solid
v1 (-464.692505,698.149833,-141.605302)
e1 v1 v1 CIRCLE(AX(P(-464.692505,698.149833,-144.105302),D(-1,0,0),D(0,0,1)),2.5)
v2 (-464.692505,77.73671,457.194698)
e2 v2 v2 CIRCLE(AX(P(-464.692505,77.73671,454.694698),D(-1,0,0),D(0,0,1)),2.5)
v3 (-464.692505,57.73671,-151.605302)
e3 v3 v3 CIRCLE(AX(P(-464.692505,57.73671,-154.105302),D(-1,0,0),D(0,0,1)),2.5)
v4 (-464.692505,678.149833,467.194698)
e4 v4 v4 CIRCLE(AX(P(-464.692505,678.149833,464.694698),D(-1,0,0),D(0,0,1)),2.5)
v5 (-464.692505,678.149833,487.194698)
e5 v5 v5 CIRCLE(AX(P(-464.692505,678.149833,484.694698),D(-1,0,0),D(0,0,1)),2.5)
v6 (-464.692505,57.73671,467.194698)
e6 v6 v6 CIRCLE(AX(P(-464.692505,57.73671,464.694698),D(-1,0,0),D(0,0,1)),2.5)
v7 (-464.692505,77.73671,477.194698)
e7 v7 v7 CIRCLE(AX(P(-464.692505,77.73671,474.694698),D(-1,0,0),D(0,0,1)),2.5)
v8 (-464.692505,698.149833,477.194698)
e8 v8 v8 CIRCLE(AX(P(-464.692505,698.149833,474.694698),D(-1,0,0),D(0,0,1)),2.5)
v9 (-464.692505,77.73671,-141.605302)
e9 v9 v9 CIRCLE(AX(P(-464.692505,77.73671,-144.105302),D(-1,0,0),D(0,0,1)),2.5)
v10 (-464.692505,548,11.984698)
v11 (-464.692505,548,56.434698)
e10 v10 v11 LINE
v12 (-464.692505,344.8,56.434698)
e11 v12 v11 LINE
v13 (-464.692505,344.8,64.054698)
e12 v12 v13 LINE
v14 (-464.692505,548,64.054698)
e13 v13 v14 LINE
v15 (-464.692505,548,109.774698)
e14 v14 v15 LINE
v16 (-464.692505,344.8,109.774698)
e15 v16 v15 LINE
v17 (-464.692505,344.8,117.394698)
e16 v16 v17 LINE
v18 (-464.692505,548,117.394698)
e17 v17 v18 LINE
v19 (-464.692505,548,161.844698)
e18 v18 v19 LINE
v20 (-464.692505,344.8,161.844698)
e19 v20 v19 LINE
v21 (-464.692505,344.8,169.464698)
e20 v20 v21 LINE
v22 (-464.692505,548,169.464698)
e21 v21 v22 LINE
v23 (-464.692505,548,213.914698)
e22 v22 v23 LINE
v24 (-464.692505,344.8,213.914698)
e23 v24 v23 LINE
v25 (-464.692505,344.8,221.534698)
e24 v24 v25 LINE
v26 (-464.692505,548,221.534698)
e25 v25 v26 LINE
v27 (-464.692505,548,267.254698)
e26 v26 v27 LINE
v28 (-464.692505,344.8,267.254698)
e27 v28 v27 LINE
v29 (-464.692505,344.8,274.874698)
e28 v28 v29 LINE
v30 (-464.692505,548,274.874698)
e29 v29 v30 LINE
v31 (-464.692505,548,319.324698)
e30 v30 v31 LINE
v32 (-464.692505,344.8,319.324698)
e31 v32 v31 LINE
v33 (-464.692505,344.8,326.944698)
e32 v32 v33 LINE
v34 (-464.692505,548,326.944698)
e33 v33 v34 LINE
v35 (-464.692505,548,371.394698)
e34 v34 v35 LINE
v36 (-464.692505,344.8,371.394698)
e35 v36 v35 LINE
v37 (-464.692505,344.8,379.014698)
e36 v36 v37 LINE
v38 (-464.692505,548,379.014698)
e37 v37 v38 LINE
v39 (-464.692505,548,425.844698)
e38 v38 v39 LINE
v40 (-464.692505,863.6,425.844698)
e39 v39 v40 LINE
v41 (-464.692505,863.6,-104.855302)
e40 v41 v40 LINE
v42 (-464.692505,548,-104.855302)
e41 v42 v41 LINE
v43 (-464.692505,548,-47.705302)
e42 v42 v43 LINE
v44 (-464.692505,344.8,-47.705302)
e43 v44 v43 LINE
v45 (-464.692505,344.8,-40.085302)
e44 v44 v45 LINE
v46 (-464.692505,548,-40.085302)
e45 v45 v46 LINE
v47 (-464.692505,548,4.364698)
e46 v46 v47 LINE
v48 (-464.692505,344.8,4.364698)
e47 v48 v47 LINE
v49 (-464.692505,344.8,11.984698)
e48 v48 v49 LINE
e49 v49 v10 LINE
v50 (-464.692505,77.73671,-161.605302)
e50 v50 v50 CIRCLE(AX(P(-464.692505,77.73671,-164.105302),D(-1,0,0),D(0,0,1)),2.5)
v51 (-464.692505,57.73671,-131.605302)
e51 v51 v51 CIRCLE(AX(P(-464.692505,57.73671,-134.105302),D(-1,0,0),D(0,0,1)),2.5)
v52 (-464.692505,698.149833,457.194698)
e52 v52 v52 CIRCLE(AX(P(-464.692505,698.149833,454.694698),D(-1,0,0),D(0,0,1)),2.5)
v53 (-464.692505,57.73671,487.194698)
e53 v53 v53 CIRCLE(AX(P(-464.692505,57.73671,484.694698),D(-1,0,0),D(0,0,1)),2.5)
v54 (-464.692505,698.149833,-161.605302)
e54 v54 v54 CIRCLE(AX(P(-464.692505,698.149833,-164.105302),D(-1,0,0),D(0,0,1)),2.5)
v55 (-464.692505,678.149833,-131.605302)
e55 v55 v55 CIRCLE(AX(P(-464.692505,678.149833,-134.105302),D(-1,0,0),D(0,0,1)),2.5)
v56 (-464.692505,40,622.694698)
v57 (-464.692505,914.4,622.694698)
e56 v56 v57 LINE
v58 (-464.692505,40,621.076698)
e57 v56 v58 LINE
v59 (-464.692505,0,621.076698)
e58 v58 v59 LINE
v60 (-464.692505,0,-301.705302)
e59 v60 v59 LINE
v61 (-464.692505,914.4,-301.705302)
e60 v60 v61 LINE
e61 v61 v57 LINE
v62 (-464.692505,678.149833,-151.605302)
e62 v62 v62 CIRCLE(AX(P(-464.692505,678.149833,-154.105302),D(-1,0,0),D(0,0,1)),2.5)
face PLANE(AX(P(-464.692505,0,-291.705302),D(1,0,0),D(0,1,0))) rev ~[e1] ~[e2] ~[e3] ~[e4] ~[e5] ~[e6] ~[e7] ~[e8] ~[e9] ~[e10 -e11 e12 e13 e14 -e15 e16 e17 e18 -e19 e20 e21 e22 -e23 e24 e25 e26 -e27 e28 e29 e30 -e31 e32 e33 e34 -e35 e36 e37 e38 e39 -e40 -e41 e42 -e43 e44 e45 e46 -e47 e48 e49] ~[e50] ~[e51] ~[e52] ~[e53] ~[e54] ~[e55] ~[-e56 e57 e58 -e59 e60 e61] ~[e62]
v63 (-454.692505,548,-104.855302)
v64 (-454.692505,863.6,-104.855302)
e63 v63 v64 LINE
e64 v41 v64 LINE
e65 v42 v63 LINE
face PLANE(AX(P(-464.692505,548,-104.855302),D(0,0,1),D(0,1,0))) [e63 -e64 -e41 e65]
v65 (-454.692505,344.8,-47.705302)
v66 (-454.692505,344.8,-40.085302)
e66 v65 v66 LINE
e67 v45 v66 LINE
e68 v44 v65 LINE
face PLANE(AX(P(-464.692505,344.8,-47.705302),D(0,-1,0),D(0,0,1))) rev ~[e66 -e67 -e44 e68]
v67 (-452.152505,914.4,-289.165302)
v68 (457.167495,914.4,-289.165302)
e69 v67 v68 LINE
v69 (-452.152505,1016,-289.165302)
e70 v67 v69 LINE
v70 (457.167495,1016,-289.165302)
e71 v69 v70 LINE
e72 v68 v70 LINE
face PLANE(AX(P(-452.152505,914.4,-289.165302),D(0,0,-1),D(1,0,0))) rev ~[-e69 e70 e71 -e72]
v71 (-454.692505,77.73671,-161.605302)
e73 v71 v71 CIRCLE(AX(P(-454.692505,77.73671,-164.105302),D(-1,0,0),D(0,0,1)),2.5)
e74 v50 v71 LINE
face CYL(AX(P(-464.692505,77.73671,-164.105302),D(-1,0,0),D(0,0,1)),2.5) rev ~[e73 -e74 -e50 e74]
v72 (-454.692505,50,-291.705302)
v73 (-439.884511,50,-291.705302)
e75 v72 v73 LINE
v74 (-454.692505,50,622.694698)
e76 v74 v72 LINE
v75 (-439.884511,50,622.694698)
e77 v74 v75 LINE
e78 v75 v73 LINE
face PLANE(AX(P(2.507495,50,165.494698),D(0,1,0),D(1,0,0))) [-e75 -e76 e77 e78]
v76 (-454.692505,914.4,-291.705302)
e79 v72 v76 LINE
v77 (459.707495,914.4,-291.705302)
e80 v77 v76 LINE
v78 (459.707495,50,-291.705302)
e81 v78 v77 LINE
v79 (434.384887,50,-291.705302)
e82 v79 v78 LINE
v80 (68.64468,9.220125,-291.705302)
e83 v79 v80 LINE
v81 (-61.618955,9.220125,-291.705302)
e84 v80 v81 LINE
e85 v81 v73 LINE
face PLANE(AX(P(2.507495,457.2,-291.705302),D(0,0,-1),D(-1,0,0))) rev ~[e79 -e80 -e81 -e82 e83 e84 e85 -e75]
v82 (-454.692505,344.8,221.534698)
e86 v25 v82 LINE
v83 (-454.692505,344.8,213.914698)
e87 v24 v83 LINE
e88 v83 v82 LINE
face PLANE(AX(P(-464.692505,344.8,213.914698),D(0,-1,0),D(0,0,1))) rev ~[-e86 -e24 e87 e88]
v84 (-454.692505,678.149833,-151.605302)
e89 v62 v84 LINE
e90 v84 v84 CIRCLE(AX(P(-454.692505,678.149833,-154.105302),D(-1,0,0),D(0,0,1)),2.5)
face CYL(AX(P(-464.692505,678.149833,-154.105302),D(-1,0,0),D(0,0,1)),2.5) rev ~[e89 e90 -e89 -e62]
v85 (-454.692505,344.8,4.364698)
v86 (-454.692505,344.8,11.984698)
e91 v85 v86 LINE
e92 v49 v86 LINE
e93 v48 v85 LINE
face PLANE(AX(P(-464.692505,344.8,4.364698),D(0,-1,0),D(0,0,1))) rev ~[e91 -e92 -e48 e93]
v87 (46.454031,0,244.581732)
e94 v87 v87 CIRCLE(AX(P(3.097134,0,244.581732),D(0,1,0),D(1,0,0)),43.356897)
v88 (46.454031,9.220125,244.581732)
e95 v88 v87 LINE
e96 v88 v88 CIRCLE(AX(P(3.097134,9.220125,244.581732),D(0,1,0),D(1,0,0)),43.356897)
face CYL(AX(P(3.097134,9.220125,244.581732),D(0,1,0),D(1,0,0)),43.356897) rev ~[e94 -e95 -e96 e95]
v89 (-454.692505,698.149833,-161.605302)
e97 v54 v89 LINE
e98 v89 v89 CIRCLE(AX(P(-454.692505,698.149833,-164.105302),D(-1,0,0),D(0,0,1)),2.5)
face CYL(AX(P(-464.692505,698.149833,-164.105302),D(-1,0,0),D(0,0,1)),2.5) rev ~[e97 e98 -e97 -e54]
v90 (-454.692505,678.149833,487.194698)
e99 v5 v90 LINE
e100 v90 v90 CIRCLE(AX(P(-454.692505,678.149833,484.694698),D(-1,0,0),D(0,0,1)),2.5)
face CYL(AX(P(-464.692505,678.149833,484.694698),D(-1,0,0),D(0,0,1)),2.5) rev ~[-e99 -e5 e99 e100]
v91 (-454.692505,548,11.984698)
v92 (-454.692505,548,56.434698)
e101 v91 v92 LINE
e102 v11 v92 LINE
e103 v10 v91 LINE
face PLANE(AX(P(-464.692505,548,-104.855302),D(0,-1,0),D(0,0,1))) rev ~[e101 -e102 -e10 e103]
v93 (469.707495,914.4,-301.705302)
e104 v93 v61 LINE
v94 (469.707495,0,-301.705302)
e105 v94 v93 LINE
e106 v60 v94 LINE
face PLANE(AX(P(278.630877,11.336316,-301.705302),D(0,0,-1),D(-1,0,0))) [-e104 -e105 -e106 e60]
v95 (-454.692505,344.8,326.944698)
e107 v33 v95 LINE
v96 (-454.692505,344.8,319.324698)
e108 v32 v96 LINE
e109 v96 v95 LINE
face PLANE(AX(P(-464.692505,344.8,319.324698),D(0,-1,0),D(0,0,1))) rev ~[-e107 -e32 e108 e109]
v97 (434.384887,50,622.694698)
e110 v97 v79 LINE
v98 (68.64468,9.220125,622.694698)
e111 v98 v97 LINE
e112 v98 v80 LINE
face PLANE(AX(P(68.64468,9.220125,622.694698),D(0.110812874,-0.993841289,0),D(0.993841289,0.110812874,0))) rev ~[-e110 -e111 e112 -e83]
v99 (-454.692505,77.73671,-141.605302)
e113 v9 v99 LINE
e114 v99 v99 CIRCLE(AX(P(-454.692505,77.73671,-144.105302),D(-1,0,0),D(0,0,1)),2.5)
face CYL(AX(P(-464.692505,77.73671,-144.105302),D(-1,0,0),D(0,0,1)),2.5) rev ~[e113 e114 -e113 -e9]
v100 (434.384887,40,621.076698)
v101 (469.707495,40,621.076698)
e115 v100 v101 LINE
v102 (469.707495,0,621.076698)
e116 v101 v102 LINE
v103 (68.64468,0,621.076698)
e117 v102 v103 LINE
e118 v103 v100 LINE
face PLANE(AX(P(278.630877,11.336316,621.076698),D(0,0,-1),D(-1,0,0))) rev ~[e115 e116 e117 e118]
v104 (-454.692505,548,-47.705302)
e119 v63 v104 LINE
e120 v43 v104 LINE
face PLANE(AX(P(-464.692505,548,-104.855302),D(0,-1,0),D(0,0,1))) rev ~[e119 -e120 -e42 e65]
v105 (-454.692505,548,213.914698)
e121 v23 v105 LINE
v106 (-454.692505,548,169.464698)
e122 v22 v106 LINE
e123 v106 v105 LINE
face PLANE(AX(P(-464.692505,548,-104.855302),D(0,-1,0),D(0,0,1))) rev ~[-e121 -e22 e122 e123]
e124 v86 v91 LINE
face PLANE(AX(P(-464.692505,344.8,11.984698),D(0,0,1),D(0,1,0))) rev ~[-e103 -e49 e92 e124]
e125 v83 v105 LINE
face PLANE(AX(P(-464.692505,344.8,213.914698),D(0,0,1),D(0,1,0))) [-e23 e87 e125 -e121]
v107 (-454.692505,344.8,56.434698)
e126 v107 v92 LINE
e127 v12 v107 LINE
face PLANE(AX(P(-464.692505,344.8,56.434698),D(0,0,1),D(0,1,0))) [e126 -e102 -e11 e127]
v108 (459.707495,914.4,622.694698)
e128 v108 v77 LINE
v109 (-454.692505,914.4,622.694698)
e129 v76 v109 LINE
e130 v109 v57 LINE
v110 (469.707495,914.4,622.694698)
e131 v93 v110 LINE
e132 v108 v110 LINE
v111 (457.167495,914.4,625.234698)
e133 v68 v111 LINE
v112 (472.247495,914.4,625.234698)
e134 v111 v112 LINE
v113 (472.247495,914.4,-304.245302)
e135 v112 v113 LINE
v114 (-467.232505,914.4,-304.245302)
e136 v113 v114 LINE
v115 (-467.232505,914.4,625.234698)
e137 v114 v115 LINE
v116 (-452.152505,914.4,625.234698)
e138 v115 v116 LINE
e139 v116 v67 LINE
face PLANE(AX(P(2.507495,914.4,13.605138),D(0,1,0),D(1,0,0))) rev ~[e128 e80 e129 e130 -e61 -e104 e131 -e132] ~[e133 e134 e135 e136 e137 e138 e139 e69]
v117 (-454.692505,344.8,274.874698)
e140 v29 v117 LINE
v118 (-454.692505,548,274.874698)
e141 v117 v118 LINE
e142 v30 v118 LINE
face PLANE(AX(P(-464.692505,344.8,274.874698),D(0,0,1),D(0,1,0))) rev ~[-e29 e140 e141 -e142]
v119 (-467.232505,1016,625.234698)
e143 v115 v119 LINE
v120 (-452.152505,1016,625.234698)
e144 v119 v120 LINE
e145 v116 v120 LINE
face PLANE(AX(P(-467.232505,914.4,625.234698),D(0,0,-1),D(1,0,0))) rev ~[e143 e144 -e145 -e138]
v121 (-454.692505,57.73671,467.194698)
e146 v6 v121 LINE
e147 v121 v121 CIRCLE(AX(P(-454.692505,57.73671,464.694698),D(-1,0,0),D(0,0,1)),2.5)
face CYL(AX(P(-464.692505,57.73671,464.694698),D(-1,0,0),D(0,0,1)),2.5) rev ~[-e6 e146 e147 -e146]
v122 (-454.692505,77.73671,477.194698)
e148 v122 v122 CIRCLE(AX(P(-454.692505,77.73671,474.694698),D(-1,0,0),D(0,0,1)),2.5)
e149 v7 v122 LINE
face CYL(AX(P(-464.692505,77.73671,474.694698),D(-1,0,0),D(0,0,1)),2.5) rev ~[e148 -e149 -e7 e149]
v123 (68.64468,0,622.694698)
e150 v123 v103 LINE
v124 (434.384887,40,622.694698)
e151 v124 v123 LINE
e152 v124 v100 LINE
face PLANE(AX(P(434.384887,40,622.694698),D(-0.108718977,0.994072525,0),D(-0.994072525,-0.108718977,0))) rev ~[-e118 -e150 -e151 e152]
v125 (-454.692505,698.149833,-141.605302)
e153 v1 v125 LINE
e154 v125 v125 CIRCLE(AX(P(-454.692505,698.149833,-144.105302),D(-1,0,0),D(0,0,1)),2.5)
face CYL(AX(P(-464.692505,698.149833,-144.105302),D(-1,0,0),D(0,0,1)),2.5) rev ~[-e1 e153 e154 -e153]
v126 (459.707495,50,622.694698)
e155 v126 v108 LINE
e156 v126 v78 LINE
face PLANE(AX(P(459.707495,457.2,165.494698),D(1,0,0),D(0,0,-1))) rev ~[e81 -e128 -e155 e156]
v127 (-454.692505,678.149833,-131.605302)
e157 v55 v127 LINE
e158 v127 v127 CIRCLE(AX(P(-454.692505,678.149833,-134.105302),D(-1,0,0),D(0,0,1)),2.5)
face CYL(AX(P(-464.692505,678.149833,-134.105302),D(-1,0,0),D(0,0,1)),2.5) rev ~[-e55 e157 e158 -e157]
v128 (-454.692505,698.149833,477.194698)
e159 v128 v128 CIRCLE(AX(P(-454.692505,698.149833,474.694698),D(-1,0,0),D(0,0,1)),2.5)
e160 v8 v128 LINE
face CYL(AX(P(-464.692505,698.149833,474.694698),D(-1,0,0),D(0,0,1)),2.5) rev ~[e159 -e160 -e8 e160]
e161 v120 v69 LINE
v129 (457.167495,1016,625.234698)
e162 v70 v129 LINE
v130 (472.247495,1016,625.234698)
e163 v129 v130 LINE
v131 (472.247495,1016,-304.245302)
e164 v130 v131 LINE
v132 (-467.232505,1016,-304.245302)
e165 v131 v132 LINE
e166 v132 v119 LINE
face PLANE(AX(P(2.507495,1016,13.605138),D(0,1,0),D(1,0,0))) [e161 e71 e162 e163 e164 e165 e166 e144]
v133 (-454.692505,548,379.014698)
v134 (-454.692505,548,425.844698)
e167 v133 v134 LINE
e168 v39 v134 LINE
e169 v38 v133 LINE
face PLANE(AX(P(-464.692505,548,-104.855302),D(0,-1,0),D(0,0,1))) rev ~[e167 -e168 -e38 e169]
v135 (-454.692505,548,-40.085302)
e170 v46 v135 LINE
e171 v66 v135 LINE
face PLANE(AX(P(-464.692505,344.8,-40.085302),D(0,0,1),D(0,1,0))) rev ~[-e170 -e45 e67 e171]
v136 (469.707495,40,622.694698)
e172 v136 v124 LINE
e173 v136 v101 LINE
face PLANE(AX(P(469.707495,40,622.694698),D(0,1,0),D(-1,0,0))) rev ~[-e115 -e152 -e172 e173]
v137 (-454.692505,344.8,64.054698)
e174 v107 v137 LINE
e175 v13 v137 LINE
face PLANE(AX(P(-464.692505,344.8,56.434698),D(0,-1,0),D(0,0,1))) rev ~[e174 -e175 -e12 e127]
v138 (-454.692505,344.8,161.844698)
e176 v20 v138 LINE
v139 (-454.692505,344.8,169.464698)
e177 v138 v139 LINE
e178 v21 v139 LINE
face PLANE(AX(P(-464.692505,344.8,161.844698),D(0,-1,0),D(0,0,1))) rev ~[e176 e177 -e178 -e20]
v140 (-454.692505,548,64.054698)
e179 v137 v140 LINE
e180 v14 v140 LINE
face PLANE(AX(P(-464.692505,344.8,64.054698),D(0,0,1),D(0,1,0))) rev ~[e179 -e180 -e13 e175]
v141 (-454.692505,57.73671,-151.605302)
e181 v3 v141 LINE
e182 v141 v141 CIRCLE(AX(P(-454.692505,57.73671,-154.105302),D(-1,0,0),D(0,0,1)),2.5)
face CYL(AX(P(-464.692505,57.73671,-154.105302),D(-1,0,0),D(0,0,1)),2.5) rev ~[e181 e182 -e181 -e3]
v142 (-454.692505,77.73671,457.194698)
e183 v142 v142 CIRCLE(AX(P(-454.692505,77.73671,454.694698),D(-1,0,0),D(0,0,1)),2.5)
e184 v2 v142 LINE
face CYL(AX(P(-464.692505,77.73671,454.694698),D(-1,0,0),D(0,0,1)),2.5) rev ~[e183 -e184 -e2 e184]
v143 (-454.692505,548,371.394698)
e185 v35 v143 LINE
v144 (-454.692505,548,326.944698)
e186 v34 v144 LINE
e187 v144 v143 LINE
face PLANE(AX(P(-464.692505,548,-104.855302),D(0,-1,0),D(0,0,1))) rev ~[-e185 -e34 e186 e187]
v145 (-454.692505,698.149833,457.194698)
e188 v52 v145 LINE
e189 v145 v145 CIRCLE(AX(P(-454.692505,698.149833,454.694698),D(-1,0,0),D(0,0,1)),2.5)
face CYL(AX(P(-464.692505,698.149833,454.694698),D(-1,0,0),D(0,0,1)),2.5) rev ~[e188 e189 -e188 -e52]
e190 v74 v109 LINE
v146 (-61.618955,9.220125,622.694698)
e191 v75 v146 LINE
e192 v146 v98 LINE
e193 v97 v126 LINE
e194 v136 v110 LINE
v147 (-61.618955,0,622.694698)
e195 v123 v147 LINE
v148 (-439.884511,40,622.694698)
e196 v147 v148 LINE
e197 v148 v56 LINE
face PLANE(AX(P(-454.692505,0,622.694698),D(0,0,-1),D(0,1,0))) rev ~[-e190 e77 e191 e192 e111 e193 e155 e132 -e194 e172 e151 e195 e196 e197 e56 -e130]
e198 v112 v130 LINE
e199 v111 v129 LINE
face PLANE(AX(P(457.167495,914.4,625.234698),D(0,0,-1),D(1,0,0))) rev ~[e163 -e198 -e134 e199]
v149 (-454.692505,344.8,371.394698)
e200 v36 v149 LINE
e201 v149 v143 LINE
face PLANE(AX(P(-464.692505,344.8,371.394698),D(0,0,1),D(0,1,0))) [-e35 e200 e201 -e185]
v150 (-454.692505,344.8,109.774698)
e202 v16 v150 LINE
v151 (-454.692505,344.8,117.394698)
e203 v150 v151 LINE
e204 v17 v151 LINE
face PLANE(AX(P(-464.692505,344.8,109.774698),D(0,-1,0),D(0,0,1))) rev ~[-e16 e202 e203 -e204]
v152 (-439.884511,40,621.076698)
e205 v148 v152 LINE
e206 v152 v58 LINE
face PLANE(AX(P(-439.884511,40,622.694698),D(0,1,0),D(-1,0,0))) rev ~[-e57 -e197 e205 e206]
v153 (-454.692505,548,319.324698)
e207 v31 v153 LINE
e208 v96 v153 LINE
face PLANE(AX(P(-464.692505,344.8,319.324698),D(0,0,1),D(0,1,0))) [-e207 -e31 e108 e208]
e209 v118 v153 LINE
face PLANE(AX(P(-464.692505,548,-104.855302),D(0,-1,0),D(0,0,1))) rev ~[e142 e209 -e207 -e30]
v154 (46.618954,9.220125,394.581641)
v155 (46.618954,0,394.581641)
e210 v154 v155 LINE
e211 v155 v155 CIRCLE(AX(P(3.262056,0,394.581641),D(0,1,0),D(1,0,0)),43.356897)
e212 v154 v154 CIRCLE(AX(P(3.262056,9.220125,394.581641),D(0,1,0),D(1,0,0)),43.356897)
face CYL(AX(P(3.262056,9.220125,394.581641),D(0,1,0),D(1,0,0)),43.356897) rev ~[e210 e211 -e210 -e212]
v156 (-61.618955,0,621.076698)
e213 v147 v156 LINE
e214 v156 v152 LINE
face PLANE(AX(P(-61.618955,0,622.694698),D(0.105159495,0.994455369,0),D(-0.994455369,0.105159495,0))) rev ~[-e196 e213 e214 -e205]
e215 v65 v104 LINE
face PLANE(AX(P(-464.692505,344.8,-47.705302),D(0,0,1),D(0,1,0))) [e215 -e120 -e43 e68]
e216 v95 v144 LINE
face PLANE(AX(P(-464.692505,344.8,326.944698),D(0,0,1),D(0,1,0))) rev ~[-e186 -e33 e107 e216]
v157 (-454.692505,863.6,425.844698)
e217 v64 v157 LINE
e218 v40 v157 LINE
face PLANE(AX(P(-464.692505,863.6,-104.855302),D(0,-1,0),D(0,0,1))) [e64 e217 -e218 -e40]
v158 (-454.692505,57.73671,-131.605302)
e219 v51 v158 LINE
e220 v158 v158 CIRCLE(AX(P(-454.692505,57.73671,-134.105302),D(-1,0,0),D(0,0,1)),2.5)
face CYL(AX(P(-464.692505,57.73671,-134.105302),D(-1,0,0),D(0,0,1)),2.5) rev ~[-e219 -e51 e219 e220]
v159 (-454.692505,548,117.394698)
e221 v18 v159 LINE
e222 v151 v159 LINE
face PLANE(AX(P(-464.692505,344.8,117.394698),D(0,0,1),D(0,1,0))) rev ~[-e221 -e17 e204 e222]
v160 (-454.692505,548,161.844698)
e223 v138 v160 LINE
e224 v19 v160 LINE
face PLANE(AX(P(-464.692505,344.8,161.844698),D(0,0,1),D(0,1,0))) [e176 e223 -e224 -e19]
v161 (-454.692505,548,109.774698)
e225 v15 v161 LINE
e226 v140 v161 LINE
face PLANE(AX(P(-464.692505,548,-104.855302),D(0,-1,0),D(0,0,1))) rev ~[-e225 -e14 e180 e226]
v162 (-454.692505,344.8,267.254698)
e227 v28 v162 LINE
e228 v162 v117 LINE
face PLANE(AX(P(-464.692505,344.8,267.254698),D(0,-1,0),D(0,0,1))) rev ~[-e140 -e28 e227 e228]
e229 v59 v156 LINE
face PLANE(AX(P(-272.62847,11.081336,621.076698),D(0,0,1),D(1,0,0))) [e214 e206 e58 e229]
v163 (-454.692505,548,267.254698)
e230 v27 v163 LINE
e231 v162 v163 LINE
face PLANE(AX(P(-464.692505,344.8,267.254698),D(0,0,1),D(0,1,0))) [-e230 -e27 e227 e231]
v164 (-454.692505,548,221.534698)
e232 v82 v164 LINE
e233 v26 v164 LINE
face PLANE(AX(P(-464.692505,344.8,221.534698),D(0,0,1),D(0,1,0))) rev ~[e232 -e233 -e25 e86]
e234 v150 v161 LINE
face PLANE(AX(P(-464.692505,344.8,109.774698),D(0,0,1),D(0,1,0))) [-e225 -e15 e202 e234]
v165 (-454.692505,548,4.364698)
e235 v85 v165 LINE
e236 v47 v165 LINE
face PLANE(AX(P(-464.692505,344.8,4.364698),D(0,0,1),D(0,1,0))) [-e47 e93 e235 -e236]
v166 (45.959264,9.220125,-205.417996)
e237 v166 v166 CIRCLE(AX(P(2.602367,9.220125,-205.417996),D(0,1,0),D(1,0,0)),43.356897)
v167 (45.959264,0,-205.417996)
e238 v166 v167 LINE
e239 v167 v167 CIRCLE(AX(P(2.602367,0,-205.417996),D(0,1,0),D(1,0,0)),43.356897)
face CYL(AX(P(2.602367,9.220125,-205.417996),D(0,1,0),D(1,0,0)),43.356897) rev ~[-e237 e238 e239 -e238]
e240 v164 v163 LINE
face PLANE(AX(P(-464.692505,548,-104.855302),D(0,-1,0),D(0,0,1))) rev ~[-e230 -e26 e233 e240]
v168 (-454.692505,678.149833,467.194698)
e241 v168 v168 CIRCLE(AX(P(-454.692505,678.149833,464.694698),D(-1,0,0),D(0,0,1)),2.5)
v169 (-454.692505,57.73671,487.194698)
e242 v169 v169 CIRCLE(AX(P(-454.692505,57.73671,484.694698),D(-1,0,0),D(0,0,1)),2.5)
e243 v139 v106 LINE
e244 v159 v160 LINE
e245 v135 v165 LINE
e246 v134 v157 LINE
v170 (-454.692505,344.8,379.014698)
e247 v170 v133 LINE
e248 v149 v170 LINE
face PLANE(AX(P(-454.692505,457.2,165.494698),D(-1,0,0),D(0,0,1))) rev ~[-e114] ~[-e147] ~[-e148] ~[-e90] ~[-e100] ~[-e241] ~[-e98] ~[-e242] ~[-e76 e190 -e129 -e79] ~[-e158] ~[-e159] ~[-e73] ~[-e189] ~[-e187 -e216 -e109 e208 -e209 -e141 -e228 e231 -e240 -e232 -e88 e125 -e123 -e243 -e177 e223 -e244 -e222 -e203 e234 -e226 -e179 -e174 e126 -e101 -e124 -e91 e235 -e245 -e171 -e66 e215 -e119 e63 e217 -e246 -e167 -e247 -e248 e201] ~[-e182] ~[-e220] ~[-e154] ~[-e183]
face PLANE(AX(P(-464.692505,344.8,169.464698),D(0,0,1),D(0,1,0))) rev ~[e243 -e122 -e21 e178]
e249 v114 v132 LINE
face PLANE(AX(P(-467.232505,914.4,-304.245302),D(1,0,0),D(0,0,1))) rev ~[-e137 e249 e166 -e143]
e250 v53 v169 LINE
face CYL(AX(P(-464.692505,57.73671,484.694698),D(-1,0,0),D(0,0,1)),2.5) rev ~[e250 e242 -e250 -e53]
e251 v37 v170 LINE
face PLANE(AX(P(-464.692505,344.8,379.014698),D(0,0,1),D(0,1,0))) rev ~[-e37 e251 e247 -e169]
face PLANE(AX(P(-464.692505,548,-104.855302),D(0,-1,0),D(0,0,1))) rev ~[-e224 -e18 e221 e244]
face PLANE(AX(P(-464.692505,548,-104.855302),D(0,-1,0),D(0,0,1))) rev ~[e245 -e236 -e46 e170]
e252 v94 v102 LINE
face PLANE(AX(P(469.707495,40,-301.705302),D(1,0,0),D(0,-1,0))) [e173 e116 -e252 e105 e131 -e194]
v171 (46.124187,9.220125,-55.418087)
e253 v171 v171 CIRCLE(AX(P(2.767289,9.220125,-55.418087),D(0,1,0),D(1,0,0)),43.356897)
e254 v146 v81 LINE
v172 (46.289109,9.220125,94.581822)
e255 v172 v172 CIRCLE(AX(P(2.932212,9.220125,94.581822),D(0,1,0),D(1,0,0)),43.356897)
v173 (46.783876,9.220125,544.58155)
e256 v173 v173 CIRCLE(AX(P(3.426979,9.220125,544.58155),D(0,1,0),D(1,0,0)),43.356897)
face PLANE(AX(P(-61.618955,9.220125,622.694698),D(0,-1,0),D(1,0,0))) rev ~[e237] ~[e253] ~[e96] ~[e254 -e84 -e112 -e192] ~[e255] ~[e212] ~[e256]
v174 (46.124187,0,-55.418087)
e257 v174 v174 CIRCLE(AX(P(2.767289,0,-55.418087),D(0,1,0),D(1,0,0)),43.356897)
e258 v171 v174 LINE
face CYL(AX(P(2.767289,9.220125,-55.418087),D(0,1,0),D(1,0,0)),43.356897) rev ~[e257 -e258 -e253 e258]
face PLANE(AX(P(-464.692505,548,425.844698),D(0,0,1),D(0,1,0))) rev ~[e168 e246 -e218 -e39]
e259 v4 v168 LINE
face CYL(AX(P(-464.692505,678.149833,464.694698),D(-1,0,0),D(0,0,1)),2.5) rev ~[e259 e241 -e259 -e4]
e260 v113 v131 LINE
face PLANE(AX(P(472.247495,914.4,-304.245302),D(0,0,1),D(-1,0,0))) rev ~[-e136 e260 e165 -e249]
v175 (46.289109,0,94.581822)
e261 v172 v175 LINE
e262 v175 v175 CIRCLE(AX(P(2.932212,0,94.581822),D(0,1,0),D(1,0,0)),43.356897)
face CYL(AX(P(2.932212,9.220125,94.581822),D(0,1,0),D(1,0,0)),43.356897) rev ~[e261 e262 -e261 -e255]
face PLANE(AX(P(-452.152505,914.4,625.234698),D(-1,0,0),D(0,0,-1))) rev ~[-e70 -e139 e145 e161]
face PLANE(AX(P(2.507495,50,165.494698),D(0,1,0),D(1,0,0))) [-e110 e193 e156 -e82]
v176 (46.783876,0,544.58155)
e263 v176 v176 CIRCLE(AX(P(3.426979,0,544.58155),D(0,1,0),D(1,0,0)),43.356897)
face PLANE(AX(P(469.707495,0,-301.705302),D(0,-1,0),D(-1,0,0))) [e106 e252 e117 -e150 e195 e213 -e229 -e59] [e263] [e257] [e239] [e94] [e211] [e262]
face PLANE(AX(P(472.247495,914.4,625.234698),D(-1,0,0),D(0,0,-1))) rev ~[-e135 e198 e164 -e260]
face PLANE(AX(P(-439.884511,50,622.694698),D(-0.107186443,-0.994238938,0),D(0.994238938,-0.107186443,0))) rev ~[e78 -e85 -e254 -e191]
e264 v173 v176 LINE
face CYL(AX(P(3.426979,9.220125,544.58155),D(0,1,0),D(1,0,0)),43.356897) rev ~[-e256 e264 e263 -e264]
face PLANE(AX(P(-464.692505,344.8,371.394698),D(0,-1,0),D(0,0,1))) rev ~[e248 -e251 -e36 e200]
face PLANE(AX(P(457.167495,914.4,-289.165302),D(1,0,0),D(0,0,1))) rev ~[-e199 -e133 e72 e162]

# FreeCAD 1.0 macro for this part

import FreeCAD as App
import Part
import Sketcher

V = App.Vector

doc = App.newDocument("Part")
body = doc.addObject("PartDesign::Body", "Body")

# Sketch on XZ plane
sketch1 = body.newObject("Sketcher::SketchObject", "Sketch")
sketch1.AttachmentSupport = (doc.getObject("XZ_Plane"), [""])
sketch1.MapMode = "FlatFace"
sketch1.addGeometry([
    Part.LineSegment(V(-455, -292, 0), V(-455, 623, 0)),
    Part.LineSegment(V(-455, 623, 0), V(460, 623, 0)),
    Part.LineSegment(V(460, 623, 0), V(460, -292, 0)),
    Part.LineSegment(V(460, -292, 0), V(-455, -292, 0)),
], False)
sketch1.addConstraint([
    Sketcher.Constraint("Coincident", 0, 2, 1, 1),
    Sketcher.Constraint("Coincident", 1, 2, 2, 1),
    Sketcher.Constraint("Coincident", 2, 2, 3, 1),
    Sketcher.Constraint("Coincident", 3, 2, 0, 1),
    Sketcher.Constraint("Vertical", 0),
    Sketcher.Constraint("Horizontal", 1),
    Sketcher.Constraint("Vertical", 2),
    Sketcher.Constraint("Horizontal", 3),
    Sketcher.Constraint("Equal", 3, 0),
    Sketcher.Constraint("DistanceX", 1, 1, 1, 2, 914.4),
    Sketcher.Constraint("DistanceY", -1, 1, 0, 2, 622.694698),
    Sketcher.Constraint("DistanceX", 0, 2, -1, 1, 454.692505),
])
pad1 = body.newObject("PartDesign::Pad", "Pad")
pad1.Profile = sketch1
pad1.Length = 50
pad1.Reversed = True

# Sketch on YZ plane
sketch2 = body.newObject("Sketcher::SketchObject", "Sketch001")
sketch2.AttachmentSupport = (doc.getObject("YZ_Plane"), [""])
sketch2.MapMode = "FlatFace"
sketch2.AttachmentOffset = App.Placement(V(0, 0, 459.707495), App.Rotation())
sketch2.addGeometry([
    Part.LineSegment(V(914, 623, 0), V(0, 623, 0)),
    Part.LineSegment(V(0, 623, 0), V(0, -292, 0)),
    Part.LineSegment(V(0, -292, 0), V(914, -292, 0)),
    Part.LineSegment(V(914, -292, 0), V(914, 623, 0)),
], False)
sketch2.addConstraint([
    Sketcher.Constraint("Coincident", 0, 2, 1, 1),
    Sketcher.Constraint("Coincident", 1, 2, 2, 1),
    Sketcher.Constraint("Coincident", 2, 2, 3, 1),
    Sketcher.Constraint("Coincident", 3, 2, 0, 1),
    Sketcher.Constraint("Horizontal", 0),
    Sketcher.Constraint("Vertical", 1),
    Sketcher.Constraint("Horizontal", 2),
    Sketcher.Constraint("Vertical", 3),
    Sketcher.Constraint("PointOnObject", 0, 2, -2),
    Sketcher.Constraint("Equal", 2, 1),
    Sketcher.Constraint("DistanceX", 0, 2, 0, 1, 914.4),
    Sketcher.Constraint("DistanceY", -1, 1, 0, 2, 622.694698),
])
pad2 = body.newObject("PartDesign::Pad", "Pad001")
pad2.Profile = sketch2
pad2.Length = 10

# Sketch on YZ plane
sketch3 = body.newObject("Sketcher::SketchObject", "Sketch002")
sketch3.AttachmentSupport = (doc.getObject("YZ_Plane"), [""])
sketch3.MapMode = "FlatFace"
sketch3.AttachmentOffset = App.Placement(V(0, 0, -454.692505), App.Rotation())
sketch3.addGeometry([
    Part.LineSegment(V(914, -292, 0), V(0, -292, 0)),
    Part.LineSegment(V(0, -292, 0), V(0, 623, 0)),
    Part.LineSegment(V(0, 623, 0), V(914, 623, 0)),
    Part.LineSegment(V(914, 623, 0), V(914, -292, 0)),
], False)
sketch3.addConstraint([
    Sketcher.Constraint("Coincident", 0, 2, 1, 1),
    Sketcher.Constraint("Coincident", 1, 2, 2, 1),
    Sketcher.Constraint("Coincident", 2, 2, 3, 1),
    Sketcher.Constraint("Coincident", 3, 2, 0, 1),
    Sketcher.Constraint("Horizontal", 0),
    Sketcher.Constraint("Vertical", 1),
    Sketcher.Constraint("Horizontal", 2),
    Sketcher.Constraint("Vertical", 3),
    Sketcher.Constraint("PointOnObject", 0, 2, -2),
    Sketcher.Constraint("Equal", 2, 1),
    Sketcher.Constraint("DistanceX", 0, 2, 0, 1, 914.4),
    Sketcher.Constraint("DistanceY", 0, 2, -1, 1, 291.705302),
])
pad3 = body.newObject("PartDesign::Pad", "Pad002")
pad3.Profile = sketch3
pad3.Length = 10
pad3.Reversed = True

# Sketch on XY plane
sketch4 = body.newObject("Sketcher::SketchObject", "Sketch003")
sketch4.AttachmentSupport = (doc.getObject("XY_Plane"), [""])
sketch4.MapMode = "FlatFace"
sketch4.AttachmentOffset = App.Placement(V(0, 0, -291.705302), App.Rotation())
sketch4.addGeometry([
    Part.LineSegment(V(470, 914, 0), V(470, 0, 0)),
    Part.LineSegment(V(470, 0, 0), V(-465, 0, 0)),
    Part.LineSegment(V(-465, 0, 0), V(-465, 914, 0)),
    Part.LineSegment(V(-465, 914, 0), V(470, 914, 0)),
], False)
sketch4.addConstraint([
    Sketcher.Constraint("Coincident", 0, 2, 1, 1),
    Sketcher.Constraint("Coincident", 1, 2, 2, 1),
    Sketcher.Constraint("Coincident", 2, 2, 3, 1),
    Sketcher.Constraint("Coincident", 3, 2, 0, 1),
    Sketcher.Constraint("Vertical", 0),
    Sketcher.Constraint("Horizontal", 1),
    Sketcher.Constraint("Vertical", 2),
    Sketcher.Constraint("Horizontal", 3),
    Sketcher.Constraint("PointOnObject", 0, 2, -1),
    Sketcher.Constraint("DistanceX", 1, 2, 1, 1, 934.4),
    Sketcher.Constraint("DistanceY", 0, 2, 0, 1, 914.4),
    Sketcher.Constraint("DistanceX", -1, 1, 0, 2, 469.707495),
])
pad4 = body.newObject("PartDesign::Pad", "Pad003")
pad4.Profile = sketch4
pad4.Length = 10
pad4.Reversed = True

# Sketch on XY plane
sketch5 = body.newObject("Sketcher::SketchObject", "Sketch004")
sketch5.AttachmentSupport = (doc.getObject("XY_Plane"), [""])
sketch5.MapMode = "FlatFace"
sketch5.AttachmentOffset = App.Placement(V(0, 0, 622.694698), App.Rotation())
sketch5.addGeometry([
    Part.LineSegment(V(-465, 0, 0), V(-62, 0, 0)),  # 0
    Part.LineSegment(V(-62, 0, 0), V(-440, 40, 0)),  # 1
    Part.LineSegment(V(-440, 40, 0), V(-465, 40, 0)),  # 2
    Part.LineSegment(V(-465, 40, 0), V(-465, 0, 0)),  # 3
    Part.LineSegment(V(-440, 50, 0), V(-62, 9, 0)),  # 4
    Part.LineSegment(V(-62, 9, 0), V(69, 9, 0)),  # 5
    Part.LineSegment(V(69, 9, 0), V(434, 50, 0)),  # 6
    Part.LineSegment(V(434, 50, 0), V(-440, 50, 0)),  # 7
    Part.LineSegment(V(434, 40, 0), V(69, 0, 0)),  # 8
    Part.LineSegment(V(69, 0, 0), V(470, 0, 0)),  # 9
    Part.LineSegment(V(470, 0, 0), V(470, 40, 0)),  # 10
    Part.LineSegment(V(470, 40, 0), V(434, 40, 0)),  # 11
], False)
sketch5.addConstraint([
    Sketcher.Constraint("Coincident", 0, 2, 1, 1),
    Sketcher.Constraint("Coincident", 1, 2, 2, 1),
    Sketcher.Constraint("Coincident", 2, 2, 3, 1),
    Sketcher.Constraint("Coincident", 3, 2, 0, 1),
    Sketcher.Constraint("Coincident", 4, 2, 5, 1),
    Sketcher.Constraint("Coincident", 5, 2, 6, 1),
    Sketcher.Constraint("Coincident", 6, 2, 7, 1),
    Sketcher.Constraint("Coincident", 7, 2, 4, 1),
    Sketcher.Constraint("Coincident", 8, 2, 9, 1),
    Sketcher.Constraint("Coincident", 9, 2, 10, 1),
    Sketcher.Constraint("Coincident", 10, 2, 11, 1),
    Sketcher.Constraint("Coincident", 11, 2, 8, 1),
    Sketcher.Constraint("Horizontal", 0),
    Sketcher.Constraint("Horizontal", 2),
    Sketcher.Constraint("Vertical", 3),
    Sketcher.Constraint("Horizontal", 5),
    Sketcher.Constraint("Horizontal", 7),
    Sketcher.Constraint("Horizontal", 9),
    Sketcher.Constraint("Vertical", 10),
    Sketcher.Constraint("Horizontal", 11),
    Sketcher.Constraint("PointOnObject", 0, 2, -1),
    Sketcher.Constraint("PointOnObject", 8, 2, -1),
    Sketcher.Constraint("Horizontal", 2, 2, 10, 2),
    Sketcher.Constraint("Vertical", 0, 2, 4, 2),
    Sketcher.Constraint("Vertical", 1, 2, 7, 2),
    Sketcher.Constraint("Vertical", 5, 2, 8, 2),
    Sketcher.Constraint("Vertical", 6, 2, 11, 2),
    Sketcher.Constraint("DistanceY", 3, 2, 3, 1, 40.0),
    Sketcher.Constraint("DistanceY", -1, 1, 6, 2, 50.0),
    Sketcher.Constraint("DistanceX", 0, 1, 0, 2, 403.07355),
    Sketcher.Constraint("DistanceX", 11, 2, 11, 1, 35.322609),
    Sketcher.Constraint("Distance", 8, 367.921049),
    Sketcher.Constraint("DistanceX", 2, 2, 2, 1, 24.807994),
    Sketcher.Constraint("DistanceX", 5, 1, 5, 2, 130.263635),
    Sketcher.Constraint("DistanceX", 1, 2, -1, 1, 439.884511),
    Sketcher.Constraint("Distance", 4, 380.457395),
])
pocket1 = body.newObject("PartDesign::Pocket", "Pocket")
pocket1.Profile = sketch5
pocket1.Type = "ThroughAll"

# Sketch on XY plane
sketch6 = body.newObject("Sketcher::SketchObject", "Sketch005")
sketch6.AttachmentSupport = (doc.getObject("XY_Plane"), [""])
sketch6.MapMode = "FlatFace"
sketch6.AttachmentOffset = App.Placement(V(0, 0, -301.705302), App.Rotation())
sketch6.addGeometry([
    Part.LineSegment(V(434, 50, 0), V(69, 9, 0)),
    Part.LineSegment(V(69, 9, 0), V(-62, 9, 0)),
    Part.LineSegment(V(-62, 9, 0), V(-440, 50, 0)),
    Part.LineSegment(V(-440, 50, 0), V(434, 50, 0)),
], False)
sketch6.addConstraint([
    Sketcher.Constraint("Coincident", 0, 2, 1, 1),
    Sketcher.Constraint("Coincident", 1, 2, 2, 1),
    Sketcher.Constraint("Coincident", 2, 2, 3, 1),
    Sketcher.Constraint("Coincident", 3, 2, 0, 1),
    Sketcher.Constraint("Horizontal", 1),
    Sketcher.Constraint("Horizontal", 3),
    Sketcher.Constraint("DistanceY", -1, 1, 2, 2, 50.0),
    Sketcher.Constraint("DistanceX", 1, 2, 1, 1, 130.263635),
    Sketcher.Constraint("DistanceX", 3, 1, 3, 2, 874.269398),
    Sketcher.Constraint("DistanceX", -1, 1, 0, 2, 68.64468),
    Sketcher.Constraint("DistanceX", 2, 2, -1, 1, 439.884511),
    Sketcher.Constraint("Distance", 0, 368.006653),
])
pad5 = body.newObject("PartDesign::Pad", "Pad004")
pad5.Profile = sketch6
pad5.Length = 10

# Sketch on XZ plane
sketch7 = body.newObject("Sketcher::SketchObject", "Sketch006")
sketch7.AttachmentSupport = (doc.getObject("XZ_Plane"), [""])
sketch7.MapMode = "FlatFace"
sketch7.AttachmentOffset = App.Placement(V(0, 0, -9.220125), App.Rotation())
sketch7.addGeometry([
    Part.Circle(V(3, 545, 0), V(0, 0, 1), 43),  # 0
    Part.Circle(V(3, 395, 0), V(0, 0, 1), 43),  # 1
    Part.Circle(V(3, 245, 0), V(0, 0, 1), 43),  # 2
    Part.Circle(V(3, 95, 0), V(0, 0, 1), 43),  # 3
    Part.Circle(V(3, -55, 0), V(0, 0, 1), 43),  # 4
    Part.Circle(V(3, -205, 0), V(0, 0, 1), 43),  # 5
], False)
sketch7.addConstraint([
    Sketcher.Constraint("Equal", 0, 1),
    Sketcher.Constraint("Equal", 1, 2),
    Sketcher.Constraint("Equal", 2, 3),
    Sketcher.Constraint("Equal", 3, 4),
    Sketcher.Constraint("Equal", 4, 5),
    Sketcher.Constraint("Diameter", 0, 86.713795),
    Sketcher.Constraint("DistanceX", -1, 1, 0, 3, 3.426979),
    Sketcher.Constraint("DistanceY", -1, 1, 0, 3, 544.58155),
    Sketcher.Constraint("DistanceY", -1, 1, 1, 3, 394.581641),
    Sketcher.Constraint("DistanceY", -1, 1, 2, 3, 244.581732),
    Sketcher.Constraint("DistanceX", -1, 1, 3, 3, 2.932212),
    Sketcher.Constraint("DistanceX", -1, 1, 4, 3, 2.767289),
    Sketcher.Constraint("DistanceY", 3, 3, 2, 3, 149.999909),
    Sketcher.Constraint("DistanceY", 4, 3, 3, 3, 149.999909),
    Sketcher.Constraint("DistanceY", 5, 3, 4, 3, 149.999909),
    Sketcher.Constraint("DistanceX", 5, 3, 1, 3, 0.659689),
    Sketcher.Constraint("DistanceX", 5, 3, 0, 3, 0.824612),
    Sketcher.Constraint("DistanceX", -1, 1, 2, 3, 3.097134),
])
pocket2 = body.newObject("PartDesign::Pocket", "Pocket001")
pocket2.Profile = sketch7
pocket2.Type = "ThroughAll"
pocket2.Reversed = True

# Sketch on YZ plane
sketch8 = body.newObject("Sketcher::SketchObject", "Sketch007")
sketch8.AttachmentSupport = (doc.getObject("YZ_Plane"), [""])
sketch8.MapMode = "FlatFace"
sketch8.AttachmentOffset = App.Placement(V(0, 0, -464.692505), App.Rotation())
sketch8.addGeometry([
    Part.LineSegment(V(864, -105, 0), V(548, -105, 0)),
    Part.LineSegment(V(548, -105, 0), V(548, 426, 0)),
    Part.LineSegment(V(548, 426, 0), V(864, 426, 0)),
    Part.LineSegment(V(864, 426, 0), V(864, -105, 0)),
], False)
sketch8.addConstraint([
    Sketcher.Constraint("Coincident", 0, 2, 1, 1),
    Sketcher.Constraint("Coincident", 1, 2, 2, 1),
    Sketcher.Constraint("Coincident", 2, 2, 3, 1),
    Sketcher.Constraint("Coincident", 3, 2, 0, 1),
    Sketcher.Constraint("Horizontal", 0),
    Sketcher.Constraint("Vertical", 1),
    Sketcher.Constraint("Horizontal", 2),
    Sketcher.Constraint("Vertical", 3),
    Sketcher.Constraint("DistanceX", 0, 2, 0, 1, 315.6),
    Sketcher.Constraint("DistanceY", 1, 1, 1, 2, 530.7),
    Sketcher.Constraint("DistanceX", -1, 1, 0, 2, 548.0),
    Sketcher.Constraint("DistanceY", 0, 2, -1, 1, 104.855302),
])
pocket3 = body.newObject("PartDesign::Pocket", "Pocket002")
pocket3.Profile = sketch8
pocket3.Length = 10
pocket3.Reversed = True

# Sketch on XZ plane
sketch9 = body.newObject("Sketcher::SketchObject", "Sketch008")
sketch9.AttachmentSupport = (doc.getObject("XZ_Plane"), [""])
sketch9.MapMode = "FlatFace"
sketch9.AttachmentOffset = App.Placement(V(0, 0, -914.4), App.Rotation())
sketch9.addGeometry([
    Part.LineSegment(V(457, -289, 0), V(457, 625, 0)),  # 0
    Part.LineSegment(V(457, 625, 0), V(472, 625, 0)),  # 1
    Part.LineSegment(V(472, 625, 0), V(472, -304, 0)),  # 2
    Part.LineSegment(V(472, -304, 0), V(-467, -304, 0)),  # 3
    Part.LineSegment(V(-467, -304, 0), V(-467, 625, 0)),  # 4
    Part.LineSegment(V(-467, 625, 0), V(-452, 625, 0)),  # 5
    Part.LineSegment(V(-452, 625, 0), V(-452, -289, 0)),  # 6
    Part.LineSegment(V(-452, -289, 0), V(457, -289, 0)),  # 7
], False)
sketch9.addConstraint([
    Sketcher.Constraint("Coincident", 0, 2, 1, 1),
    Sketcher.Constraint("Coincident", 1, 2, 2, 1),
    Sketcher.Constraint("Coincident", 2, 2, 3, 1),
    Sketcher.Constraint("Coincident", 3, 2, 4, 1),
    Sketcher.Constraint("Coincident", 4, 2, 5, 1),
    Sketcher.Constraint("Coincident", 5, 2, 6, 1),
    Sketcher.Constraint("Coincident", 6, 2, 7, 1),
    Sketcher.Constraint("Coincident", 7, 2, 0, 1),
    Sketcher.Constraint("Vertical", 0),
    Sketcher.Constraint("Horizontal", 1),
    Sketcher.Constraint("Vertical", 2),
    Sketcher.Constraint("Horizontal", 3),
    Sketcher.Constraint("Vertical", 4),
    Sketcher.Constraint("Horizontal", 5),
    Sketcher.Constraint("Vertical", 6),
    Sketcher.Constraint("Horizontal", 7),
    Sketcher.Constraint("Horizontal", 1, 2, 4, 2),
    Sketcher.Constraint("Equal", 1, 5),
    Sketcher.Constraint("DistanceY", 0, 1, 0, 2, 914.4),
    Sketcher.Constraint("DistanceX", 1, 1, 1, 2, 15.08),
    Sketcher.Constraint("DistanceX", 3, 2, 3, 1, 939.48),
    Sketcher.Constraint("DistanceY", 2, 2, 2, 1, 929.48),
    Sketcher.Constraint("DistanceY", -1, 1, 0, 2, 625.234698),
    Sketcher.Constraint("DistanceX", -1, 1, 0, 2, 457.167495),
])
pad6 = body.newObject("PartDesign::Pad", "Pad005")
pad6.Profile = sketch9
pad6.Length = 101.6
pad6.Reversed = True

# Sketch on XY plane
sketch10 = body.newObject("Sketcher::SketchObject", "Sketch009")
sketch10.AttachmentSupport = (doc.getObject("XY_Plane"), [""])
sketch10.MapMode = "FlatFace"
sketch10.AttachmentOffset = App.Placement(V(0, 0, -301.705302), App.Rotation())
sketch10.addGeometry([
    Part.LineSegment(V(470, 40, 0), V(470, 0, 0)),  # 0
    Part.LineSegment(V(470, 0, 0), V(69, 0, 0)),  # 1
    Part.LineSegment(V(69, 0, 0), V(434, 40, 0)),  # 2
    Part.LineSegment(V(434, 40, 0), V(470, 40, 0)),  # 3
    Part.LineSegment(V(-440, 40, 0), V(-62, 0, 0)),  # 4
    Part.LineSegment(V(-62, 0, 0), V(-465, 0, 0)),  # 5
    Part.LineSegment(V(-465, 0, 0), V(-465, 40, 0)),  # 6
    Part.LineSegment(V(-465, 40, 0), V(-440, 40, 0)),  # 7
], False)
sketch10.addConstraint([
    Sketcher.Constraint("Coincident", 0, 2, 1, 1),
    Sketcher.Constraint("Coincident", 1, 2, 2, 1),
    Sketcher.Constraint("Coincident", 2, 2, 3, 1),
    Sketcher.Constraint("Coincident", 3, 2, 0, 1),
    Sketcher.Constraint("Coincident", 4, 2, 5, 1),
    Sketcher.Constraint("Coincident", 5, 2, 6, 1),
    Sketcher.Constraint("Coincident", 6, 2, 7, 1),
    Sketcher.Constraint("Coincident", 7, 2, 4, 1),
    Sketcher.Constraint("Vertical", 0),
    Sketcher.Constraint("Horizontal", 1),
    Sketcher.Constraint("Horizontal", 3),
    Sketcher.Constraint("Horizontal", 5),
    Sketcher.Constraint("Vertical", 6),
    Sketcher.Constraint("Horizontal", 7),
    Sketcher.Constraint("PointOnObject", 0, 2, -1),
    Sketcher.Constraint("PointOnObject", 4, 2, -1),
    Sketcher.Constraint("Horizontal", 3, 2, 6, 2),
    Sketcher.Constraint("DistanceY", 0, 2, 0, 1, 40.0),
    Sketcher.Constraint("DistanceX", 5, 2, 0, 2, 934.4),
    Sketcher.Constraint("DistanceX", 3, 1, 3, 2, 35.322609),
    Sketcher.Constraint("DistanceX", 5, 2, 5, 1, 403.07355),
    Sketcher.Constraint("Distance", 2, 367.921049),
    Sketcher.Constraint("DistanceX", 7, 1, 7, 2, 24.807994),
    Sketcher.Constraint("DistanceX", -1, 1, 1, 2, 68.64468),
])
pad7 = body.newObject("PartDesign::Pad", "Pad006")
pad7.Profile = sketch10
pad7.Length = 922.782

# Sketch on YZ plane
sketch11 = body.newObject("Sketcher::SketchObject", "Sketch010")
sketch11.AttachmentSupport = (doc.getObject("YZ_Plane"), [""])
sketch11.MapMode = "FlatFace"
sketch11.AttachmentOffset = App.Placement(V(0, 0, -464.692505), App.Rotation())
sketch11.addGeometry([
    Part.Circle(V(77.7, -164.1, 0), V(0, 0, 1), 2.5),  # 0
    Part.Circle(V(77.7, -144.1, 0), V(0, 0, 1), 2.5),  # 1
    Part.Circle(V(57.7, -134.1, 0), V(0, 0, 1), 2.5),  # 2
    Part.Circle(V(57.7, -154.1, 0), V(0, 0, 1), 2.5),  # 3
    Part.Circle(V(77.7, 474.7, 0), V(0, 0, 1), 2.5),  # 4
    Part.Circle(V(57.7, 484.7, 0), V(0, 0, 1), 2.5),  # 5
    Part.Circle(V(57.7, 464.7, 0), V(0, 0, 1), 2.5),  # 6
    Part.Circle(V(77.7, 454.7, 0), V(0, 0, 1), 2.5),  # 7
    Part.Circle(V(698.1, -164.1, 0), V(0, 0, 1), 2.5),  # 8
    Part.Circle(V(698.1, -144.1, 0), V(0, 0, 1), 2.5),  # 9
    Part.Circle(V(678.1, -134.1, 0), V(0, 0, 1), 2.5),  # 10
    Part.Circle(V(678.1, -154.1, 0), V(0, 0, 1), 2.5),  # 11
    Part.Circle(V(698.1, 474.7, 0), V(0, 0, 1), 2.5),  # 12
    Part.Circle(V(678.1, 484.7, 0), V(0, 0, 1), 2.5),  # 13
    Part.Circle(V(678.1, 464.7, 0), V(0, 0, 1), 2.5),  # 14
    Part.Circle(V(698.1, 454.7, 0), V(0, 0, 1), 2.5),  # 15
], False)
sketch11.addConstraint([
    Sketcher.Constraint("Equal", 0, 1),
    Sketcher.Constraint("Equal", 1, 2),
    Sketcher.Constraint("Equal", 2, 3),
    Sketcher.Constraint("Equal", 3, 4),
    Sketcher.Constraint("Equal", 4, 5),
    Sketcher.Constraint("Equal", 5, 6),
    Sketcher.Constraint("Equal", 6, 7),
    Sketcher.Constraint("Equal", 7, 8),
    Sketcher.Constraint("Equal", 8, 9),
    Sketcher.Constraint("Equal", 9, 10),
    Sketcher.Constraint("Equal", 10, 11),
    Sketcher.Constraint("Equal", 11, 12),
    Sketcher.Constraint("Equal", 12, 13),
    Sketcher.Constraint("Equal", 13, 14),
    Sketcher.Constraint("Equal", 14, 15),
    Sketcher.Constraint("Horizontal", 0, 3, 8, 3),
    Sketcher.Constraint("Horizontal", 1, 3, 9, 3),
    Sketcher.Constraint("Horizontal", 2, 3, 10, 3),
    Sketcher.Constraint("Horizontal", 3, 3, 11, 3),
    Sketcher.Constraint("Horizontal", 4, 3, 12, 3),
    Sketcher.Constraint("Horizontal", 5, 3, 13, 3),
    Sketcher.Constraint("Horizontal", 6, 3, 14, 3),
    Sketcher.Constraint("Horizontal", 7, 3, 15, 3),
    Sketcher.Constraint("Vertical", 0, 3, 1, 3),
    Sketcher.Constraint("Vertical", 2, 3, 3, 3),
    Sketcher.Constraint("Vertical", 1, 3, 4, 3),
    Sketcher.Constraint("Vertical", 3, 3, 5, 3),
    Sketcher.Constraint("Vertical", 5, 3, 6, 3),
    Sketcher.Constraint("Vertical", 4, 3, 7, 3),
    Sketcher.Constraint("Vertical", 8, 3, 9, 3),
    Sketcher.Constraint("Vertical", 10, 3, 11, 3),
    Sketcher.Constraint("Vertical", 9, 3, 12, 3),
    Sketcher.Constraint("Vertical", 11, 3, 13, 3),
    Sketcher.Constraint("Vertical", 13, 3, 14, 3),
    Sketcher.Constraint("Vertical", 12, 3, 15, 3),
    Sketcher.Constraint("Diameter", 0, 5.0),
    Sketcher.Constraint("DistanceY", 0, 3, 1, 3, 20.0),
    Sketcher.Constraint("DistanceX", 2, 3, 1, 3, 20.0),
    Sketcher.Constraint("DistanceY", 1, 3, 2, 3, 10.0),
    Sketcher.Constraint("DistanceY", 3, 3, 2, 3, 20.0),
    Sketcher.Constraint("DistanceY", 4, 3, 5, 3, 10.0),
    Sketcher.Constraint("DistanceY", 6, 3, 5, 3, 20.0),
    Sketcher.Constraint("DistanceY", 7, 3, 4, 3, 20.0),
    Sketcher.Constraint("DistanceX", 10, 3, 9, 3, 20.0),
    Sketcher.Constraint("DistanceY", 2, 3, 4, 3, 608.8),
    Sketcher.Constraint("DistanceY", 0, 3, -1, 1, 164.105302),
    Sketcher.Constraint("DistanceX", -1, 1, 0, 3, 77.73671),
    Sketcher.Constraint("DistanceX", -1, 1, 8, 3, 698.149833),
])
pocket4 = body.newObject("PartDesign::Pocket", "Pocket003")
pocket4.Profile = sketch11
pocket4.Length = 10
pocket4.Reversed = True

# Sketch on YZ plane
sketch12 = body.newObject("Sketcher::SketchObject", "Sketch011")
sketch12.AttachmentSupport = (doc.getObject("YZ_Plane"), [""])
sketch12.MapMode = "FlatFace"
sketch12.AttachmentOffset = App.Placement(V(0, 0, -464.692505), App.Rotation())
sketch12.addGeometry([
    Part.LineSegment(V(548, -48, 0), V(345, -48, 0)),  # 0
    Part.LineSegment(V(345, -48, 0), V(345, -40, 0)),  # 1
    Part.LineSegment(V(345, -40, 0), V(548, -40, 0)),  # 2
    Part.LineSegment(V(548, -40, 0), V(548, -48, 0)),  # 3
    Part.LineSegment(V(548, 4, 0), V(345, 4, 0)),  # 4
    Part.LineSegment(V(345, 4, 0), V(345, 12, 0)),  # 5
    Part.LineSegment(V(345, 12, 0), V(548, 12, 0)),  # 6
    Part.LineSegment(V(548, 12, 0), V(548, 4, 0)),  # 7
    Part.LineSegment(V(548, 56, 0), V(345, 56, 0)),  # 8
    Part.LineSegment(V(345, 56, 0), V(345, 64, 0)),  # 9
    Part.LineSegment(V(345, 64, 0), V(548, 64, 0)),  # 10
    Part.LineSegment(V(548, 64, 0), V(548, 56, 0)),  # 11
    Part.LineSegment(V(548, 110, 0), V(345, 110, 0)),  # 12
    Part.LineSegment(V(345, 110, 0), V(345, 117, 0)),  # 13
    Part.LineSegment(V(345, 117, 0), V(548, 117, 0)),  # 14
    Part.LineSegment(V(548, 117, 0), V(548, 110, 0)),  # 15
    Part.LineSegment(V(548, 162, 0), V(345, 162, 0)),  # 16
    Part.LineSegment(V(345, 162, 0), V(345, 169, 0)),  # 17
    Part.LineSegment(V(345, 169, 0), V(548, 169, 0)),  # 18
    Part.LineSegment(V(548, 169, 0), V(548, 162, 0)),  # 19
    Part.LineSegment(V(548, 214, 0), V(345, 214, 0)),  # 20
    Part.LineSegment(V(345, 214, 0), V(345, 222, 0)),  # 21
    Part.LineSegment(V(345, 222, 0), V(548, 222, 0)),  # 22
    Part.LineSegment(V(548, 222, 0), V(548, 214, 0)),  # 23
    Part.LineSegment(V(548, 267, 0), V(345, 267, 0)),  # 24
    Part.LineSegment(V(345, 267, 0), V(345, 275, 0)),  # 25
    Part.LineSegment(V(345, 275, 0), V(548, 275, 0)),  # 26
    Part.LineSegment(V(548, 275, 0), V(548, 267, 0)),  # 27
    Part.LineSegment(V(548, 319, 0), V(345, 319, 0)),  # 28
    Part.LineSegment(V(345, 319, 0), V(345, 327, 0)),  # 29
    Part.LineSegment(V(345, 327, 0), V(548, 327, 0)),  # 30
    Part.LineSegment(V(548, 327, 0), V(548, 319, 0)),  # 31
    Part.LineSegment(V(548, 371, 0), V(345, 371, 0)),  # 32
    Part.LineSegment(V(345, 371, 0), V(345, 379, 0)),  # 33
    Part.LineSegment(V(345, 379, 0), V(548, 379, 0)),  # 34
    Part.LineSegment(V(548, 379, 0), V(548, 371, 0)),  # 35
], False)
sketch12.addConstraint([
    Sketcher.Constraint("Coincident", 0, 2, 1, 1),
    Sketcher.Constraint("Coincident", 1, 2, 2, 1),
    Sketcher.Constraint("Coincident", 2, 2, 3, 1),
    Sketcher.Constraint("Coincident", 3, 2, 0, 1),
    Sketcher.Constraint("Coincident", 4, 2, 5, 1),
    Sketcher.Constraint("Coincident", 5, 2, 6, 1),
    Sketcher.Constraint("Coincident", 6, 2, 7, 1),
    Sketcher.Constraint("Coincident", 7, 2, 4, 1),
    Sketcher.Constraint("Coincident", 8, 2, 9, 1),
    Sketcher.Constraint("Coincident", 9, 2, 10, 1),
    Sketcher.Constraint("Coincident", 10, 2, 11, 1),
    Sketcher.Constraint("Coincident", 11, 2, 8, 1),
    Sketcher.Constraint("Coincident", 12, 2, 13, 1),
    Sketcher.Constraint("Coincident", 13, 2, 14, 1),
    Sketcher.Constraint("Coincident", 14, 2, 15, 1),
    Sketcher.Constraint("Coincident", 15, 2, 12, 1),
    Sketcher.Constraint("Coincident", 16, 2, 17, 1),
    Sketcher.Constraint("Coincident", 17, 2, 18, 1),
    Sketcher.Constraint("Coincident", 18, 2, 19, 1),
    Sketcher.Constraint("Coincident", 19, 2, 16, 1),
    Sketcher.Constraint("Coincident", 20, 2, 21, 1),
    Sketcher.Constraint("Coincident", 21, 2, 22, 1),
    Sketcher.Constraint("Coincident", 22, 2, 23, 1),
    Sketcher.Constraint("Coincident", 23, 2, 20, 1),
    Sketcher.Constraint("Coincident", 24, 2, 25, 1),
    Sketcher.Constraint("Coincident", 25, 2, 26, 1),
    Sketcher.Constraint("Coincident", 26, 2, 27, 1),
    Sketcher.Constraint("Coincident", 27, 2, 24, 1),
    Sketcher.Constraint("Coincident", 28, 2, 29, 1),
    Sketcher.Constraint("Coincident", 29, 2, 30, 1),
    Sketcher.Constraint("Coincident", 30, 2, 31, 1),
    Sketcher.Constraint("Coincident", 31, 2, 28, 1),
    Sketcher.Constraint("Coincident", 32, 2, 33, 1),
    Sketcher.Constraint("Coincident", 33, 2, 34, 1),
    Sketcher.Constraint("Coincident", 34, 2, 35, 1),
    Sketcher.Constraint("Coincident", 35, 2, 32, 1),
    Sketcher.Constraint("Horizontal", 0),
    Sketcher.Constraint("Vertical", 1),
    Sketcher.Constraint("Horizontal", 2),
    Sketcher.Constraint("Vertical", 3),
    Sketcher.Constraint("Horizontal", 4),
    Sketcher.Constraint("Vertical", 5),
    Sketcher.Constraint("Horizontal", 6),
    Sketcher.Constraint("Vertical", 7),
    Sketcher.Constraint("Horizontal", 8),
    Sketcher.Constraint("Vertical", 9),
    Sketcher.Constraint("Horizontal", 10),
    Sketcher.Constraint("Vertical", 11),
    Sketcher.Constraint("Horizontal", 12),
    Sketcher.Constraint("Vertical", 13),
    Sketcher.Constraint("Horizontal", 14),
    Sketcher.Constraint("Vertical", 15),
    Sketcher.Constraint("Horizontal", 16),
    Sketcher.Constraint("Vertical", 17),
    Sketcher.Constraint("Horizontal", 18),
    Sketcher.Constraint("Vertical", 19),
    Sketcher.Constraint("Horizontal", 20),
    Sketcher.Constraint("Vertical", 21),
    Sketcher.Constraint("Horizontal", 22),
    Sketcher.Constraint("Vertical", 23),
    Sketcher.Constraint("Horizontal", 24),
    Sketcher.Constraint("Vertical", 25),
    Sketcher.Constraint("Horizontal", 26),
    Sketcher.Constraint("Vertical", 27),
    Sketcher.Constraint("Horizontal", 28),
    Sketcher.Constraint("Vertical", 29),
    Sketcher.Constraint("Horizontal", 30),
    Sketcher.Constraint("Vertical", 31),
    Sketcher.Constraint("Horizontal", 32),
    Sketcher.Constraint("Vertical", 33),
    Sketcher.Constraint("Horizontal", 34),
    Sketcher.Constraint("Vertical", 35),
    Sketcher.Constraint("Vertical", 1, 2, 4, 2),
    Sketcher.Constraint("Vertical", 3, 2, 6, 2),
    Sketcher.Constraint("Vertical", 5, 2, 8, 2),
    Sketcher.Constraint("Vertical", 7, 2, 10, 2),
    Sketcher.Constraint("Vertical", 9, 2, 12, 2),
    Sketcher.Constraint("Vertical", 11, 2, 14, 2),
    Sketcher.Constraint("Vertical", 13, 2, 16, 2),
    Sketcher.Constraint("Vertical", 15, 2, 18, 2),
    Sketcher.Constraint("Vertical", 17, 2, 20, 2),
    Sketcher.Constraint("Vertical", 19, 2, 22, 2),
    Sketcher.Constraint("Vertical", 21, 2, 24, 2),
    Sketcher.Constraint("Vertical", 23, 2, 26, 2),
    Sketcher.Constraint("Vertical", 25, 2, 28, 2),
    Sketcher.Constraint("Vertical", 27, 2, 30, 2),
    Sketcher.Constraint("Vertical", 29, 2, 32, 2),
    Sketcher.Constraint("Vertical", 31, 2, 34, 2),
    Sketcher.Constraint("Equal", 3, 5),
    Sketcher.Constraint("Equal", 7, 9),
    Sketcher.Constraint("Equal", 11, 13),
    Sketcher.Constraint("Equal", 15, 17),
    Sketcher.Constraint("Equal", 19, 21),
    Sketcher.Constraint("Equal", 23, 25),
    Sketcher.Constraint("Equal", 27, 29),
    Sketcher.Constraint("Equal", 31, 33),
    Sketcher.Constraint("DistanceX", 0, 2, 0, 1, 203.2),
    Sketcher.Constraint("DistanceX", -1, 1, 2, 2, 548.0),
    Sketcher.Constraint("DistanceY", 1, 1, 1, 2, 7.62),
    Sketcher.Constraint("DistanceY", 1, 2, 4, 2, 44.45),
    Sketcher.Constraint("DistanceY", 5, 2, 8, 2, 44.45),
    Sketcher.Constraint("DistanceY", 9, 2, 12, 2, 45.72),
    Sketcher.Constraint("DistanceY", 13, 2, 16, 2, 44.45),
    Sketcher.Constraint("DistanceY", 17, 2, 20, 2, 44.45),
    Sketcher.Constraint("DistanceY", 21, 2, 24, 2, 45.72),
    Sketcher.Constraint("DistanceY", 25, 2, 28, 2, 44.45),
    Sketcher.Constraint("DistanceY", 29, 2, 32, 2, 44.45),
    Sketcher.Constraint("DistanceY", 0, 2, -1, 1, 47.705302),
])
pocket5 = body.newObject("PartDesign::Pocket", "Pocket004")
pocket5.Profile = sketch12
pocket5.Length = 10
pocket5.Reversed = True

doc.recompute()
